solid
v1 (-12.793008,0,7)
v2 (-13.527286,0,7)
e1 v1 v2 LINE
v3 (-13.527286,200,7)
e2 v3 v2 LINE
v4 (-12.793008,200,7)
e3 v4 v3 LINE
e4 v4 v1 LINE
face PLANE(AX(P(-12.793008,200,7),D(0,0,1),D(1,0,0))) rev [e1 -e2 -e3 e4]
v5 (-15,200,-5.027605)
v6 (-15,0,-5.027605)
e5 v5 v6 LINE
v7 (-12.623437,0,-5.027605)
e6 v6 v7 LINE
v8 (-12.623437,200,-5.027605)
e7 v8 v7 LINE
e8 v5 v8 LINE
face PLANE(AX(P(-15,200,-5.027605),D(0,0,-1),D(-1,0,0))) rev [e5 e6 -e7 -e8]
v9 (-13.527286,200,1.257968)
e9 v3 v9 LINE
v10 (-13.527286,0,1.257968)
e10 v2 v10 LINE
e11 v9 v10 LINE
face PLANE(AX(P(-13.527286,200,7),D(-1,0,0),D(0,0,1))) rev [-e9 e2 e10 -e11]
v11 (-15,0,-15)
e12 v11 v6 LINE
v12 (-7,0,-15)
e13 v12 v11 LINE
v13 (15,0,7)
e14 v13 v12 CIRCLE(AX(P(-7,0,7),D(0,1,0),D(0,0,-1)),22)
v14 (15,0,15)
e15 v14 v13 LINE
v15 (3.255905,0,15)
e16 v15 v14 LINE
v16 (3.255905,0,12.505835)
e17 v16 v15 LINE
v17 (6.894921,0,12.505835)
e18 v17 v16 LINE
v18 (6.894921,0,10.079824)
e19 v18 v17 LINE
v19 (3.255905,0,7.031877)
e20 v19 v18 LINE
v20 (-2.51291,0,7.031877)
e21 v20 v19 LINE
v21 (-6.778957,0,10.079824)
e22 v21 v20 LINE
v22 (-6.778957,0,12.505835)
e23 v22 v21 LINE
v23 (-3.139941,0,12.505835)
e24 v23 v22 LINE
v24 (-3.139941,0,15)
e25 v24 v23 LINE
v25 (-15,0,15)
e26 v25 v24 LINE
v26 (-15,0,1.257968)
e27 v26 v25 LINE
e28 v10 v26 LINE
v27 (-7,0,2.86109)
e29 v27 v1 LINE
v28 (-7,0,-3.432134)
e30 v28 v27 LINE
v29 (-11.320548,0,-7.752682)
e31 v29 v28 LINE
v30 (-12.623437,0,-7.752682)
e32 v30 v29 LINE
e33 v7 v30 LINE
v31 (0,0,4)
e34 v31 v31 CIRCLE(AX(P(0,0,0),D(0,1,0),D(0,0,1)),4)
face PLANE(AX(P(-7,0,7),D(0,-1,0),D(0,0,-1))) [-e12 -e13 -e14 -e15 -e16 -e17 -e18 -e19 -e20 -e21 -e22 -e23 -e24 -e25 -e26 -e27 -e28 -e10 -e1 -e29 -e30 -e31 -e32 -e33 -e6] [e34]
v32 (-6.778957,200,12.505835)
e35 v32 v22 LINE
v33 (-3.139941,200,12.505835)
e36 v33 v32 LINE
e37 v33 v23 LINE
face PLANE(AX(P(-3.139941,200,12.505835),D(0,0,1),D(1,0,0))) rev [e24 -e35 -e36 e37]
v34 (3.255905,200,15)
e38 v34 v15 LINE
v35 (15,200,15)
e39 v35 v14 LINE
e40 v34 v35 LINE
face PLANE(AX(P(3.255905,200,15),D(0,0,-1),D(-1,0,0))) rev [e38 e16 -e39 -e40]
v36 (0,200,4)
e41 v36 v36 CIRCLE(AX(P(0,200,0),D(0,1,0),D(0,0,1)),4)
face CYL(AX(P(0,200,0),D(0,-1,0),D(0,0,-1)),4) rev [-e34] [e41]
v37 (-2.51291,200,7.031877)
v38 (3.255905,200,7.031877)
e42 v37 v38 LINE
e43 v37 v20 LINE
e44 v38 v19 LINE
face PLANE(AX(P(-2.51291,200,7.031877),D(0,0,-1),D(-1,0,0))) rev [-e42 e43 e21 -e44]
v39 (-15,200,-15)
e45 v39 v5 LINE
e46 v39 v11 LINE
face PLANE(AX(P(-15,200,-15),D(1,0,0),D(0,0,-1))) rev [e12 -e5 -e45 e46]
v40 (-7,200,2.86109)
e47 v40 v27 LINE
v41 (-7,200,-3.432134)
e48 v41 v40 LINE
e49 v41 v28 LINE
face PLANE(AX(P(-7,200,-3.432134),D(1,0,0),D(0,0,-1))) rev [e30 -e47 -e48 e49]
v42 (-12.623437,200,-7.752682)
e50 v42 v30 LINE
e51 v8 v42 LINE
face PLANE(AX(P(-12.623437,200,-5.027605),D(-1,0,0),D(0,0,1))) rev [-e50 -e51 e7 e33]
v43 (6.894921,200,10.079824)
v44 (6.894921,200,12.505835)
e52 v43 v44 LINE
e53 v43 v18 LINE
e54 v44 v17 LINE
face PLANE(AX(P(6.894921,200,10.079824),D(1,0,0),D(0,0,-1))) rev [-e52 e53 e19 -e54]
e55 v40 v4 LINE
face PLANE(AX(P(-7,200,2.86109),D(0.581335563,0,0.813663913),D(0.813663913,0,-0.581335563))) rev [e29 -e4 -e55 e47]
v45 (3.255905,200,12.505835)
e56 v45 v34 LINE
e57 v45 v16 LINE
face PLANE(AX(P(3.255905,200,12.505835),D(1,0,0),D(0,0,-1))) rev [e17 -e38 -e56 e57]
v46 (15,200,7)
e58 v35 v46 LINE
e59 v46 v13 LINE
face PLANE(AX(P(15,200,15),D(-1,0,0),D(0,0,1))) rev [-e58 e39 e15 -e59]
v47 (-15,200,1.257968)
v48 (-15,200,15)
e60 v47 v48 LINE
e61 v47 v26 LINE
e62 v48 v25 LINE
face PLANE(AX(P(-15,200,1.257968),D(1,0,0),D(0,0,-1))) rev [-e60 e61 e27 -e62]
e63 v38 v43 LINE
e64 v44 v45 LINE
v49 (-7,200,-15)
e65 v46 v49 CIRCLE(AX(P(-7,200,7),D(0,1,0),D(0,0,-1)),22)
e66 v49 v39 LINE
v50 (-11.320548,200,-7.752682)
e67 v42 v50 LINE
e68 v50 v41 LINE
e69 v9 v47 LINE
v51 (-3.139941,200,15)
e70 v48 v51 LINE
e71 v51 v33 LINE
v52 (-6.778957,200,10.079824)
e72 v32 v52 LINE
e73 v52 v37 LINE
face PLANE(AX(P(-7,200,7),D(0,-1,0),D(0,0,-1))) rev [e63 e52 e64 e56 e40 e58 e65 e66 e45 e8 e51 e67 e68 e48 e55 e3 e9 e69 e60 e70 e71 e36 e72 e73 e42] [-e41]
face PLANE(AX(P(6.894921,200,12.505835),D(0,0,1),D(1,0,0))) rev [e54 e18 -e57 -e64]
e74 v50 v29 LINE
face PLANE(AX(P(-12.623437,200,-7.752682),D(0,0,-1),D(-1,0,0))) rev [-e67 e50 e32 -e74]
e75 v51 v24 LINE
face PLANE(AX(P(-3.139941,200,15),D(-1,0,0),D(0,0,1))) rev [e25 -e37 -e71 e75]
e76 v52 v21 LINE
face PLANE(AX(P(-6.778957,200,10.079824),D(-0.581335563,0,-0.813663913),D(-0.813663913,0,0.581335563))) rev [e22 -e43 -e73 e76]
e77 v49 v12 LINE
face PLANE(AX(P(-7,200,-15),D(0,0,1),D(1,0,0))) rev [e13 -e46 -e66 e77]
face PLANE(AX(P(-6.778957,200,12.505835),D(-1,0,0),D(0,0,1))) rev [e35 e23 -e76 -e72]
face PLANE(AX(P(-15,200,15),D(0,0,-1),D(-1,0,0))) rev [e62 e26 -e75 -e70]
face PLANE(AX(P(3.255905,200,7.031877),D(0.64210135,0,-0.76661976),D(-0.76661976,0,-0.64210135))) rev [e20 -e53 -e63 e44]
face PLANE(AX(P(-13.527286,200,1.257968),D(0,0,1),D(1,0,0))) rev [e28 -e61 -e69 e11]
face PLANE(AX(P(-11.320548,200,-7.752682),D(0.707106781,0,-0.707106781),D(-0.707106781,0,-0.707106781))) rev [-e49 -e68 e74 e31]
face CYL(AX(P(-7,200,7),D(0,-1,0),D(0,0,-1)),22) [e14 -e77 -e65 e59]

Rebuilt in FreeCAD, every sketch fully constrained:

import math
import FreeCAD as App
import Part
import Sketcher

V = App.Vector
Q = App.Units.Quantity

doc = App.newDocument("Part")
body = doc.addObject("PartDesign::Body", "Body")

# Sketch on XZ plane
sketch1 = body.newObject("Sketcher::SketchObject", "Sketch")
sketch1.AttachmentSupport = (doc.getObject("XZ_Plane"), [""])
sketch1.MapMode = "FlatFace"
sketch1.addGeometry([
    Part.LineSegment(V(-7, -15, 0), V(-15, -15, 0)),  # 0
    Part.LineSegment(V(-15, -15, 0), V(-15, -5, 0)),  # 1
    Part.LineSegment(V(-15, -5, 0), V(-12.6, -5, 0)),  # 2
    Part.LineSegment(V(-12.6, -5, 0), V(-12.6, -7.8, 0)),  # 3
    Part.LineSegment(V(-12.6, -7.8, 0), V(-11.3, -7.8, 0)),  # 4
    Part.LineSegment(V(-11.3, -7.8, 0), V(-7, -3.4, 0)),  # 5
    Part.LineSegment(V(-7, -3.4, 0), V(-7, 2.9, 0)),  # 6
    Part.LineSegment(V(-7, 2.9, 0), V(-12.8, 7, 0)),  # 7
    Part.LineSegment(V(-12.8, 7, 0), V(-13.5, 7, 0)),  # 8
    Part.LineSegment(V(-13.5, 7, 0), V(-13.5, 1.3, 0)),  # 9
    Part.LineSegment(V(-13.5, 1.3, 0), V(-15, 1.3, 0)),  # 10
    Part.LineSegment(V(-15, 1.3, 0), V(-15, 15, 0)),  # 11
    Part.LineSegment(V(-15, 15, 0), V(-3.1, 15, 0)),  # 12
    Part.LineSegment(V(-3.1, 15, 0), V(-3.1, 12.5, 0)),  # 13
    Part.LineSegment(V(-3.1, 12.5, 0), V(-6.8, 12.5, 0)),  # 14
    Part.LineSegment(V(-6.8, 12.5, 0), V(-6.8, 10.1, 0)),  # 15
    Part.LineSegment(V(-6.8, 10.1, 0), V(-2.5, 7, 0)),  # 16
    Part.LineSegment(V(-2.5, 7, 0), V(3.3, 7, 0)),  # 17
    Part.LineSegment(V(3.3, 7, 0), V(6.9, 10.1, 0)),  # 18
    Part.LineSegment(V(6.9, 10.1, 0), V(6.9, 12.5, 0)),  # 19
    Part.LineSegment(V(6.9, 12.5, 0), V(3.3, 12.5, 0)),  # 20
    Part.LineSegment(V(3.3, 12.5, 0), V(3.3, 15, 0)),  # 21
    Part.LineSegment(V(3.3, 15, 0), V(15, 15, 0)),  # 22
    Part.LineSegment(V(15, 15, 0), V(15, 7, 0)),  # 23
    Part.ArcOfCircle(Part.Circle(V(-7, 7, 0), V(0, 0, 1), 22), math.radians(-90), math.radians(0)),  # 24
    Part.Circle(V(0, 0, 0), V(0, 0, 1), 4),  # 25
], False)
sketch1.addConstraint([
    Sketcher.Constraint("Coincident", 0, 2, 1, 1),
    Sketcher.Constraint("Coincident", 1, 2, 2, 1),
    Sketcher.Constraint("Coincident", 2, 2, 3, 1),
    Sketcher.Constraint("Coincident", 3, 2, 4, 1),
    Sketcher.Constraint("Coincident", 4, 2, 5, 1),
    Sketcher.Constraint("Coincident", 5, 2, 6, 1),
    Sketcher.Constraint("Coincident", 6, 2, 7, 1),
    Sketcher.Constraint("Coincident", 7, 2, 8, 1),
    Sketcher.Constraint("Coincident", 8, 2, 9, 1),
    Sketcher.Constraint("Coincident", 9, 2, 10, 1),
    Sketcher.Constraint("Coincident", 10, 2, 11, 1),
    Sketcher.Constraint("Coincident", 11, 2, 12, 1),
    Sketcher.Constraint("Coincident", 12, 2, 13, 1),
    Sketcher.Constraint("Coincident", 13, 2, 14, 1),
    Sketcher.Constraint("Coincident", 14, 2, 15, 1),
    Sketcher.Constraint("Coincident", 15, 2, 16, 1),
    Sketcher.Constraint("Coincident", 16, 2, 17, 1),
    Sketcher.Constraint("Coincident", 17, 2, 18, 1),
    Sketcher.Constraint("Coincident", 18, 2, 19, 1),
    Sketcher.Constraint("Coincident", 19, 2, 20, 1),
    Sketcher.Constraint("Coincident", 20, 2, 21, 1),
    Sketcher.Constraint("Coincident", 21, 2, 22, 1),
    Sketcher.Constraint("Coincident", 22, 2, 23, 1),
    Sketcher.Constraint("Tangent", 23, 2, 24, 2),
    Sketcher.Constraint("Tangent", 24, 1, 0, 1),
    Sketcher.Constraint("Horizontal", 0),
    Sketcher.Constraint("Vertical", 1),
    Sketcher.Constraint("Horizontal", 2),
    Sketcher.Constraint("Vertical", 3),
    Sketcher.Constraint("Horizontal", 4),
    Sketcher.Constraint("Vertical", 6),
    Sketcher.Constraint("Horizontal", 8),
    Sketcher.Constraint("Vertical", 9),
    Sketcher.Constraint("Horizontal", 10),
    Sketcher.Constraint("Vertical", 11),
    Sketcher.Constraint("Horizontal", 12),
    Sketcher.Constraint("Vertical", 13),
    Sketcher.Constraint("Horizontal", 14),
    Sketcher.Constraint("Vertical", 15),
    Sketcher.Constraint("Horizontal", 17),
    Sketcher.Constraint("Vertical", 19),
    Sketcher.Constraint("Horizontal", 20),
    Sketcher.Constraint("Vertical", 21),
    Sketcher.Constraint("Horizontal", 22),
    Sketcher.Constraint("Vertical", 23),
    Sketcher.Constraint("Coincident", 25, 3, -1, 1),
    Sketcher.Constraint("Symmetric", 0, 2, 22, 2, -1, 1),
    Sketcher.Constraint("Symmetric", 11, 2, 22, 2, -2),
    Sketcher.Constraint("Parallel", 7, 16),
    Sketcher.Constraint("Horizontal", 24, 3, 7, 2),
    Sketcher.Constraint("Horizontal", 15, 2, 18, 2),
    Sketcher.Constraint("Horizontal", 14, 2, 19, 2),
    Sketcher.Constraint("Vertical", 24, 3, 5, 2),
    Sketcher.Constraint("Vertical", 17, 2, 20, 2),
    Sketcher.Constraint("Equal", 14, 20),
    Sketcher.Constraint("Equal", 0, 23),
    Sketcher.Constraint("Diameter", 25, 8.0),
    Sketcher.Constraint("Radius", 24, 22.0),
    Sketcher.Constraint("DistanceX", 0, 2, 0, 1, 8.0),
    Sketcher.Constraint("Angle", 5, Q("45 deg")),
    Sketcher.Constraint("DistanceX", 4, 1, 4, 2, 1.302889),
    Sketcher.Constraint("DistanceX", 8, 2, 8, 1, 0.734278),
    Sketcher.Constraint("DistanceX", 12, 1, 12, 2, 11.860059),
    Sketcher.Constraint("DistanceY", 15, 2, 15, 1, 2.426011),
    Sketcher.Constraint("Distance", 5, 6.110178),
    Sketcher.Constraint("Distance", 16, 5.243009),
    Sketcher.Constraint("DistanceX", 10, 2, 10, 1, 1.472714),
    Sketcher.Constraint("DistanceX", 14, 2, 14, 1, 3.639016),
    Sketcher.Constraint("DistanceX", 17, 1, 17, 2, 5.768814),
    Sketcher.Constraint("DistanceX", 22, 1, 22, 2, 11.744095),
    Sketcher.Constraint("DistanceY", 1, 1, 1, 2, 9.972395),
    Sketcher.Constraint("DistanceY", 3, 2, 3, 1, 2.725077),
    Sketcher.Constraint("DistanceY", 9, 2, 9, 1, 5.742032),
    Sketcher.Constraint("DistanceY", 13, 2, 13, 1, 2.494165),
])
pad1 = body.newObject("PartDesign::Pad", "Pad")
pad1.Profile = sketch1
pad1.Length = 200
pad1.Reversed = True

doc.recompute()
